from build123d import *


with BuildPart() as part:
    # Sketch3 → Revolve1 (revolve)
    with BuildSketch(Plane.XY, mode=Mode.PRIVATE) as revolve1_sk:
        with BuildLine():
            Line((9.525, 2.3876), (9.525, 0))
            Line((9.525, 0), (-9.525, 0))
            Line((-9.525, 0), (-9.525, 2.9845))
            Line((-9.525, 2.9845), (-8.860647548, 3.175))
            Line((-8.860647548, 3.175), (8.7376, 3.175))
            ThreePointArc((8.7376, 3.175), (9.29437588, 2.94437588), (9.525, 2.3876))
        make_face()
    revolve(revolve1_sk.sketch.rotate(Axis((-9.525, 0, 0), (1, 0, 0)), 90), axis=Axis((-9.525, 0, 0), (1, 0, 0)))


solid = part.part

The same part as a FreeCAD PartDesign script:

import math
import FreeCAD as App
import Part
import Sketcher

V = App.Vector
Q = App.Units.Quantity

doc = App.newDocument("Part")
body = doc.addObject("PartDesign::Body", "Body")

# Sketch on XY plane
sketch1 = body.newObject("Sketcher::SketchObject", "Sketch")
sketch1.AttachmentSupport = (doc.getObject("XY_Plane"), [""])
sketch1.MapMode = "FlatFace"
sketch1.addGeometry([
    Part.LineSegment(V(9.5, 0, 0), V(9.5, 2.4, 0)),  # 0
    Part.ArcOfCircle(Part.Circle(V(8.7, 2.4, 0), V(0, 0, 1), 0.8), math.radians(0), math.radians(90)),  # 1
    Part.LineSegment(V(8.7, 3.2, 0), V(-8.9, 3.2, 0)),  # 2
    Part.LineSegment(V(-8.9, 3.2, 0), V(-9.5, 3, 0)),  # 3
    Part.LineSegment(V(-9.5, 3, 0), V(-9.5, 0, 0)),  # 4
    Part.LineSegment(V(-9.5, 0, 0), V(9.5, 0, 0)),  # 5
], False)
sketch1.addConstraint([
    Sketcher.Constraint("Tangent", 0, 2, 1, 1),
    Sketcher.Constraint("Tangent", 1, 2, 2, 1),
    Sketcher.Constraint("Coincident", 2, 2, 3, 1),
    Sketcher.Constraint("Coincident", 3, 2, 4, 1),
    Sketcher.Constraint("Coincident", 4, 2, 5, 1),
    Sketcher.Constraint("Coincident", 5, 2, 0, 1),
    Sketcher.Constraint("Vertical", 0),
    Sketcher.Constraint("Horizontal", 2),
    Sketcher.Constraint("Vertical", 4),
    Sketcher.Constraint("Horizontal", 5),
    Sketcher.Constraint("Symmetric", 4, 2, 5, 2, -1, 1),
    Sketcher.Constraint("Angle", 3, Q("-164 deg")),
    Sketcher.Constraint("Radius", 1, Q("0.031 in")),
    Sketcher.Constraint("DistanceX", 5, 1, 5, 2, Q("0.75 in")),
    Sketcher.Constraint("DistanceY", 0, 1, 0, 2, Q("0.094 in")),
    Sketcher.Constraint("DistanceY", 4, 2, 4, 1, Q("0.1175 in")),
])
revolution = body.newObject("PartDesign::Revolution", "Revolution")
revolution.Profile = sketch1
revolution.ReferenceAxis = (sketch1, ["H_Axis"])
revolution.Angle = 360

doc.recompute()
